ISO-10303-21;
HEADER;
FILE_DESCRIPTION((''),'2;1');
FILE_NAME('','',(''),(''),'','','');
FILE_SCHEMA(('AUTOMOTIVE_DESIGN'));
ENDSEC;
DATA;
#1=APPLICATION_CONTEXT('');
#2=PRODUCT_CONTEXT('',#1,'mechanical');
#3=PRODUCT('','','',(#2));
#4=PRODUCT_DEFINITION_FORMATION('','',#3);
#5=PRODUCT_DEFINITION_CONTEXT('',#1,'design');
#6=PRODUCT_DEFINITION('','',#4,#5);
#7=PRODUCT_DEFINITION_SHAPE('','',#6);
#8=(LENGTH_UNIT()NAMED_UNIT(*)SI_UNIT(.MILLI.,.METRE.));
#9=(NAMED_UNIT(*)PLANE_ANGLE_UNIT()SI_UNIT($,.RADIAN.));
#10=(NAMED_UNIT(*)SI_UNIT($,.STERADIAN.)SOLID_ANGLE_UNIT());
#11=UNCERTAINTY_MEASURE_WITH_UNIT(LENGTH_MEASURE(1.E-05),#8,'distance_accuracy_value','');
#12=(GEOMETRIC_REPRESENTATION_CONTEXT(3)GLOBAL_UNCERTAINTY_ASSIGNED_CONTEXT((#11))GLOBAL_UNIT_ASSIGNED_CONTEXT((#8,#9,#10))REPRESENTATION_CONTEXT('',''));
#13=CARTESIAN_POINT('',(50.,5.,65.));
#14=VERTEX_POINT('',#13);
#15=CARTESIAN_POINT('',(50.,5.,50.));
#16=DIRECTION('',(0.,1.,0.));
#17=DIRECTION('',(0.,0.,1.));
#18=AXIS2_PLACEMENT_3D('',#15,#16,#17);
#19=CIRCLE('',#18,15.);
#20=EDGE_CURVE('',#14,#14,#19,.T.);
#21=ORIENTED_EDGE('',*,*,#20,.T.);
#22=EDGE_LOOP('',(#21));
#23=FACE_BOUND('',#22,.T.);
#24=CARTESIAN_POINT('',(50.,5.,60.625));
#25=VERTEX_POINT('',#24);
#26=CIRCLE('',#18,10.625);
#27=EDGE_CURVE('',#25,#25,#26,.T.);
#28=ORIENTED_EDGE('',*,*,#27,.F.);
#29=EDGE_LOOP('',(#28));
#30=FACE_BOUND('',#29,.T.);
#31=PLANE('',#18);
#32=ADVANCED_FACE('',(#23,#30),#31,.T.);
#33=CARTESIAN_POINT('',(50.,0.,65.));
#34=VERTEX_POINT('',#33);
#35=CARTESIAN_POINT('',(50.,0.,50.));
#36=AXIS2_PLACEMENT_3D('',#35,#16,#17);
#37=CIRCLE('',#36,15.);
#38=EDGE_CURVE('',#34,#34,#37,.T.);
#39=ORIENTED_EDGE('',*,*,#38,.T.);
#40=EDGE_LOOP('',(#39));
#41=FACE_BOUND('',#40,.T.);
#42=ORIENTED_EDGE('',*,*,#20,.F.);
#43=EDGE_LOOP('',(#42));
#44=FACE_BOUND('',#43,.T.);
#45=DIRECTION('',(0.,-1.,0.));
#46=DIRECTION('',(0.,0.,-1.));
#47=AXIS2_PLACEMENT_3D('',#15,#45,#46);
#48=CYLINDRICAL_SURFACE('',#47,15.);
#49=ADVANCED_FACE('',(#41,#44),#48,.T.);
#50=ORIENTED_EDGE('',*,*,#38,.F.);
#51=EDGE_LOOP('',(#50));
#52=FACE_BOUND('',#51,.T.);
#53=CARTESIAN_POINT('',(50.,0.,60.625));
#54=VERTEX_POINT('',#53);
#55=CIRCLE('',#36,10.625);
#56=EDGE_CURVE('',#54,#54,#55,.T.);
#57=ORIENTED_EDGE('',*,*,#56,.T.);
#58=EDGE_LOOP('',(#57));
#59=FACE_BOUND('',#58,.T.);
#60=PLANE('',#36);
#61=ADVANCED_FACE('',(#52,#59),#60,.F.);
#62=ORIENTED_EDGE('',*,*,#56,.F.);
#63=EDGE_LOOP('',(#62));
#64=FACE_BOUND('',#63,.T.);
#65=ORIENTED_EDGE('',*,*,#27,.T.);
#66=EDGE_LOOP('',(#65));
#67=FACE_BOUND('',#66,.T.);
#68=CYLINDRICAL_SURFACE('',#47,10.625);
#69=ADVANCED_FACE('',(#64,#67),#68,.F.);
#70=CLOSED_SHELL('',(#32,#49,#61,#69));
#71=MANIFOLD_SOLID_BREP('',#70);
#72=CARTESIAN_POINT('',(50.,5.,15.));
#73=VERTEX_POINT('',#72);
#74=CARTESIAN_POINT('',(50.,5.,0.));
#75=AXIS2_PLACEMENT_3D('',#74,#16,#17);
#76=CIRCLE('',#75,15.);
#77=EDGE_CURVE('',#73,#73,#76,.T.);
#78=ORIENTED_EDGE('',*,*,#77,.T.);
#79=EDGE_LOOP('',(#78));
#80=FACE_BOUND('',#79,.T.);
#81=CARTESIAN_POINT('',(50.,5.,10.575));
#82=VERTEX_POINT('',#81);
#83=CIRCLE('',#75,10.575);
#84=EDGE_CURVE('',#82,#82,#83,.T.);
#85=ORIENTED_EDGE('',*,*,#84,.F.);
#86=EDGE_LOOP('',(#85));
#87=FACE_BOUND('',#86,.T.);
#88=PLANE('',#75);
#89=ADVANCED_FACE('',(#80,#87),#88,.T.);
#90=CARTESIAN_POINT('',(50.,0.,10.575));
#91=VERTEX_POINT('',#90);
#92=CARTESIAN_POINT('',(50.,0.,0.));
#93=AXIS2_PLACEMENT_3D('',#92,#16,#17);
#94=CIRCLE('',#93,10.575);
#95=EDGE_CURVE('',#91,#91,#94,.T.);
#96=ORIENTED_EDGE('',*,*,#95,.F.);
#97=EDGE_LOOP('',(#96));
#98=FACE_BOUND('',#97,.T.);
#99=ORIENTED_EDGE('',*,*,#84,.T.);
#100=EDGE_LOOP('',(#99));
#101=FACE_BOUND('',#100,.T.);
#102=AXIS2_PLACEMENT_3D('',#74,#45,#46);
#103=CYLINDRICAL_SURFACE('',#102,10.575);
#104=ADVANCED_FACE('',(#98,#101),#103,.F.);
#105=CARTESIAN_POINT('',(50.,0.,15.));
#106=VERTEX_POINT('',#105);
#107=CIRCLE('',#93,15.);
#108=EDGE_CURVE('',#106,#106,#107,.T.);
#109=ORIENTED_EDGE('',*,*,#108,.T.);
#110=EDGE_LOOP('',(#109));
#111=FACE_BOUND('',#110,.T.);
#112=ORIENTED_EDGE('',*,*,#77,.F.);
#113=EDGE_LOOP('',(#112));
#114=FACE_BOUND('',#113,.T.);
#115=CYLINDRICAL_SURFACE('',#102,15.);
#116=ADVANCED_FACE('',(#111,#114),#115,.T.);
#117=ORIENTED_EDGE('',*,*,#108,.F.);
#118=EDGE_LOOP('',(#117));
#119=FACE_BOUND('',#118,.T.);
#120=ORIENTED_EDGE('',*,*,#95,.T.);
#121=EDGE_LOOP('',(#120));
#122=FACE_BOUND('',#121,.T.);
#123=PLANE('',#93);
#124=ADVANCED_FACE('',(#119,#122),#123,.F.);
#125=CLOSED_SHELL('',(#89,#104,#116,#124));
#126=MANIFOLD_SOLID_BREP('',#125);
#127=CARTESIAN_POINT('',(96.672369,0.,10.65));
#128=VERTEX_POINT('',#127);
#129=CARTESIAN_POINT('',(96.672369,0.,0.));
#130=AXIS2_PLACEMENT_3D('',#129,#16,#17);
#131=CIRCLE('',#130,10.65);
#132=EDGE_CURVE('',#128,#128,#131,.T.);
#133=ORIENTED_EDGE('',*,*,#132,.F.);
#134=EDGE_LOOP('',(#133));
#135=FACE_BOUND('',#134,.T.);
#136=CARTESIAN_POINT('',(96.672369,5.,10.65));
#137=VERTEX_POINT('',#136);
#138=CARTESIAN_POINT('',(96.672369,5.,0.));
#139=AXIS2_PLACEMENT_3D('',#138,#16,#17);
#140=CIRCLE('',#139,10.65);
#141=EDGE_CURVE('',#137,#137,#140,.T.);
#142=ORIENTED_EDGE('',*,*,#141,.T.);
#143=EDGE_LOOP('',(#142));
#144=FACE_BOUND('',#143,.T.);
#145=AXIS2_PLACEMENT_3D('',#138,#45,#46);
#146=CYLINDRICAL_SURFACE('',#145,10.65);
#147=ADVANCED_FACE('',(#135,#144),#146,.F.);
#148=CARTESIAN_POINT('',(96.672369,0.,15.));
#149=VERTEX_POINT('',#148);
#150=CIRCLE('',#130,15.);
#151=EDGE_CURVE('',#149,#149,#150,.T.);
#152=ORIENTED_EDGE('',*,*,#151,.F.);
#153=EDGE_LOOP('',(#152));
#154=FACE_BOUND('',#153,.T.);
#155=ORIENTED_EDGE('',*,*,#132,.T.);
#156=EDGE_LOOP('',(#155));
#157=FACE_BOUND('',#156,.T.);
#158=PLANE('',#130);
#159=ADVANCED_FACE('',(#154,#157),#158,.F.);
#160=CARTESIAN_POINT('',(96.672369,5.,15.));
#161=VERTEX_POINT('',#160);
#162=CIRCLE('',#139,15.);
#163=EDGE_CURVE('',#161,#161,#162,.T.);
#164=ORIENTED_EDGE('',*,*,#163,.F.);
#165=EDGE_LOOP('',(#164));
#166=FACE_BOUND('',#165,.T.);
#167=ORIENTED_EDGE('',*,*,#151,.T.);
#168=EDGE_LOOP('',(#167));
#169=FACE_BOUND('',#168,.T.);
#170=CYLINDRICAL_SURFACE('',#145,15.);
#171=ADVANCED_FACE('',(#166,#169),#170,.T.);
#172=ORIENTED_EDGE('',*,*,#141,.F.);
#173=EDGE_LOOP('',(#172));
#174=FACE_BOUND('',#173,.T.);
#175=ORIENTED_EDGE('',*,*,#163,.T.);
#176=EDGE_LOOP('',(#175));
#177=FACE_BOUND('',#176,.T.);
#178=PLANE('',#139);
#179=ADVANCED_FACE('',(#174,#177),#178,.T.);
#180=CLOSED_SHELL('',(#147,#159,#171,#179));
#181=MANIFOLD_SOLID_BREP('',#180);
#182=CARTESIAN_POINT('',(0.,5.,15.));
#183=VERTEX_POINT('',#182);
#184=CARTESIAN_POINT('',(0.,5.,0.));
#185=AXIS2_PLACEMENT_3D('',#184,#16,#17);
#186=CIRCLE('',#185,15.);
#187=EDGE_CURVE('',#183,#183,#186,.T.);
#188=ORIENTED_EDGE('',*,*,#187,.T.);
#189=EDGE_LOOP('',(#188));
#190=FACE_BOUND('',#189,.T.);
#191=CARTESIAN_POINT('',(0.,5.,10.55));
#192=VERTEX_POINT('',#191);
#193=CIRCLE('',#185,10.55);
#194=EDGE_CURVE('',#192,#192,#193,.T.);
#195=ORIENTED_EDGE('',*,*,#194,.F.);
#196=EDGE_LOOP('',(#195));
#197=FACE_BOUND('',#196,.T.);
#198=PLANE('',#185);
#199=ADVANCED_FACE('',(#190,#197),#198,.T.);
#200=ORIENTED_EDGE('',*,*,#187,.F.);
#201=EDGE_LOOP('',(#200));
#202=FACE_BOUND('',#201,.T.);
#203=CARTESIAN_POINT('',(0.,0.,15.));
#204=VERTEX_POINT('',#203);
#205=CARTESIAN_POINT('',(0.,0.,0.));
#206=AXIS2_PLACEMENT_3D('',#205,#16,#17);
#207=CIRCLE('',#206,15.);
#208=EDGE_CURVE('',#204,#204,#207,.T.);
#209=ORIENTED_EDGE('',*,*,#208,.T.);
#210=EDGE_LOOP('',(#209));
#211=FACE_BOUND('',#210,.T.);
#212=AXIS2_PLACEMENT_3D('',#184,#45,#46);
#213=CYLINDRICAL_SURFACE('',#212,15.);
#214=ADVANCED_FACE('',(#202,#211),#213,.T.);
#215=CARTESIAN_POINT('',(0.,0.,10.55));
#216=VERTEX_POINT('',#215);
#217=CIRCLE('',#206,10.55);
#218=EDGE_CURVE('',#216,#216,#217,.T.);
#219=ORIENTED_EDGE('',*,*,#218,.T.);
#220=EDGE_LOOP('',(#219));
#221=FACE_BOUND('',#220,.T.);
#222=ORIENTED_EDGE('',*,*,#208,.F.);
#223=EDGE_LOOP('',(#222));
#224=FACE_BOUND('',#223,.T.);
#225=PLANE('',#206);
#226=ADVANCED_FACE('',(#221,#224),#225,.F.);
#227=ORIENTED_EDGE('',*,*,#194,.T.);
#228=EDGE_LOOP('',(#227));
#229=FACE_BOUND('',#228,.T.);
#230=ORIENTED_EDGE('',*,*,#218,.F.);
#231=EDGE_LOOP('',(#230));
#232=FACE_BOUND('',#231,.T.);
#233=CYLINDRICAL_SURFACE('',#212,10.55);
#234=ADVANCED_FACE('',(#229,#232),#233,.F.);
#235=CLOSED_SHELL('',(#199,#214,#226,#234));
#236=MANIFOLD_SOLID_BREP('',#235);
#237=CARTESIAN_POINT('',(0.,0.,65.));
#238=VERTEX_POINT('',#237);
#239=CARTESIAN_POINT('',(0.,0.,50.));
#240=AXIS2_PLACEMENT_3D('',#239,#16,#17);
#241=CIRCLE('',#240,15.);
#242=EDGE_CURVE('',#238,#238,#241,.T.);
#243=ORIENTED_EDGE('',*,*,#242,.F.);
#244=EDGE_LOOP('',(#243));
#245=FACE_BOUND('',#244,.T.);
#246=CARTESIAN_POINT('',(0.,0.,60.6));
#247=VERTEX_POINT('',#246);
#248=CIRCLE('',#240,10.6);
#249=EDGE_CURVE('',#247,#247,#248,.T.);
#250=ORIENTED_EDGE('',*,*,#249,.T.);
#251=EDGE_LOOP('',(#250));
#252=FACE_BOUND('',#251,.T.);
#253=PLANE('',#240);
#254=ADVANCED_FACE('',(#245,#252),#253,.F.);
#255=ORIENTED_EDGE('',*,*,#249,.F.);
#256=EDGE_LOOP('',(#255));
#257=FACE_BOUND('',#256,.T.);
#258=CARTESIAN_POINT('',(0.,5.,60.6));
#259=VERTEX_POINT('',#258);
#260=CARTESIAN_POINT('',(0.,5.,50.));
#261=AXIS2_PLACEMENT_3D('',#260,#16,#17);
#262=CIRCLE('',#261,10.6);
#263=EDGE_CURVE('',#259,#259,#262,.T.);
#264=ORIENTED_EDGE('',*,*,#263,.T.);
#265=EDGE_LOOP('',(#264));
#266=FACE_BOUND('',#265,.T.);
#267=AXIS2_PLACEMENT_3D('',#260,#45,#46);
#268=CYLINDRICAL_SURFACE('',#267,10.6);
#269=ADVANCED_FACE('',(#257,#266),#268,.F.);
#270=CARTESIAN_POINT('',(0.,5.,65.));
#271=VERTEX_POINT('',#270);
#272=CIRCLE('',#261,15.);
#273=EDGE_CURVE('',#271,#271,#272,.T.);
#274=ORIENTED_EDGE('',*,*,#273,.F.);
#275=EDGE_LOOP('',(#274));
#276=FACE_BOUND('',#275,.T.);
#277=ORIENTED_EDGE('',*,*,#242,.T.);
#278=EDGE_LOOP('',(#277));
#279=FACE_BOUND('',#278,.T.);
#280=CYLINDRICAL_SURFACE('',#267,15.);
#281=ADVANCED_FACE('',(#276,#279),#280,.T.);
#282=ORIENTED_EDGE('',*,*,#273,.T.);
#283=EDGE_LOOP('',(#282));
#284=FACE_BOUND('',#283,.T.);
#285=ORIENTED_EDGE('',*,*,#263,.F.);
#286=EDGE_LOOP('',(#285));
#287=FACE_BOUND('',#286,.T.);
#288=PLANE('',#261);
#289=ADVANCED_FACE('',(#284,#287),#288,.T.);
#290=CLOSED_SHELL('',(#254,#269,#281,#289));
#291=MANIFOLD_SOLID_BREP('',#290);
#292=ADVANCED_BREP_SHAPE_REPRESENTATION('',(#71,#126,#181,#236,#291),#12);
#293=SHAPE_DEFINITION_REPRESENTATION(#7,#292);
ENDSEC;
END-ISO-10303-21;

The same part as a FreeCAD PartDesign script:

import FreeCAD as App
import Part
import Sketcher

doc = App.newDocument("Part")
params = doc.addObject("Spreadsheet::Sheet", "Params")
for row, (alias, value) in enumerate([
    ("sketch1_diameter", "30 mm"),
    ("sketch1_diameter2", "21.1 mm"),
    ("pad1_length", "5 mm"),
    ("sketch2_diameter", "30 mm"),
    ("sketch2_diameter2", "21.15 mm"),
    ("pad2_length", "5 mm"),
    ("sketch3_diameter", "30 mm"),
    ("sketch3_diameter2", "21.2 mm"),
    ("pad3_length", "5 mm"),
    ("sketch4_diameter", "30 mm"),
    ("sketch4_diameter2", "21.25 mm"),
    ("pad4_length", "5 mm"),
    ("sketch5_diameter", "30 mm"),
    ("sketch5_diameter2", "21.3 mm"),
    ("pad5_length", "5 mm"),
], start=1):
    params.set(f"A{row}", alias)
    params.set(f"B{row}", "=" + value)
    params.setAlias(f"B{row}", alias)

body = doc.addObject("PartDesign::Body", "Body")

# Sketch on XZ plane
sketch1 = doc.addObject("Sketcher::SketchObject", "Sketch")
body.addObject(sketch1)
sketch1.AttachmentSupport = (doc.XZ_Plane, [""])
sketch1.MapMode = "FlatFace"
sketch1.addGeometry([
    Part.Circle(App.Vector(0, 0, 0), App.Vector(0, 0, 1), 15),
    Part.Circle(App.Vector(0, 0, 0), App.Vector(0, 0, 1), 10.55),
], False)
sketch1.addConstraint([
    Sketcher.Constraint("Coincident", 0, 3, -1, 1),
    Sketcher.Constraint("Coincident", 1, 3, -1, 1),
    Sketcher.Constraint("Diameter", 0, 30.0),
    Sketcher.Constraint("Diameter", 1, 21.1),
])
sketch1.setExpression("Constraints[2]", "Params.sketch1_diameter")
sketch1.setExpression("Constraints[3]", "Params.sketch1_diameter2")
pad1 = doc.addObject("PartDesign::Pad", "Pad")
body.addObject(pad1)
pad1.Profile = sketch1
pad1.setExpression("Length", "Params.pad1_length")
pad1.Reversed = True
body2 = doc.addObject("PartDesign::Body", "Body001")

# Sketch on XZ plane
sketch2 = doc.addObject("Sketcher::SketchObject", "Sketch001")
body2.addObject(sketch2)
sketch2.AttachmentSupport = (doc.getObject("XZ_Plane001"), [""])
sketch2.MapMode = "FlatFace"
sketch2.addGeometry([
    Part.Circle(App.Vector(50, 0, 0), App.Vector(0, 0, 1), 15),
    Part.Circle(App.Vector(50, 0, 0), App.Vector(0, 0, 1), 10.575),
], False)
sketch2.addConstraint([
    Sketcher.Constraint("Coincident", 1, 3, 0, 3),
    Sketcher.Constraint("PointOnObject", 0, 3, -1),
    Sketcher.Constraint("Diameter", 0, 30.0),
    Sketcher.Constraint("Diameter", 1, 21.15),
    Sketcher.Constraint("DistanceX", -1, 1, 0, 3, 50.0),
])
sketch2.setExpression("Constraints[2]", "Params.sketch2_diameter")
sketch2.setExpression("Constraints[3]", "Params.sketch2_diameter2")
pad2 = doc.addObject("PartDesign::Pad", "Pad001")
body2.addObject(pad2)
pad2.Profile = sketch2
pad2.setExpression("Length", "Params.pad2_length")
pad2.Reversed = True
body3 = doc.addObject("PartDesign::Body", "Body002")

# Sketch on XZ plane
sketch3 = doc.addObject("Sketcher::SketchObject", "Sketch002")
body3.addObject(sketch3)
sketch3.AttachmentSupport = (doc.getObject("XZ_Plane002"), [""])
sketch3.MapMode = "FlatFace"
sketch3.addGeometry([
    Part.Circle(App.Vector(0, 50, 0), App.Vector(0, 0, 1), 15),
    Part.Circle(App.Vector(0, 50, 0), App.Vector(0, 0, 1), 10.6),
], False)
sketch3.addConstraint([
    Sketcher.Constraint("Coincident", 1, 3, 0, 3),
    Sketcher.Constraint("PointOnObject", 0, 3, -2),
    Sketcher.Constraint("Diameter", 0, 30.0),
    Sketcher.Constraint("Diameter", 1, 21.2),
    Sketcher.Constraint("DistanceY", -1, 1, 0, 3, 50.0),
])
sketch3.setExpression("Constraints[2]", "Params.sketch3_diameter")
sketch3.setExpression("Constraints[3]", "Params.sketch3_diameter2")
pad3 = doc.addObject("PartDesign::Pad", "Pad002")
body3.addObject(pad3)
pad3.Profile = sketch3
pad3.setExpression("Length", "Params.pad3_length")
pad3.Reversed = True
body4 = doc.addObject("PartDesign::Body", "Body003")

# Sketch on XZ plane
sketch4 = doc.addObject("Sketcher::SketchObject", "Sketch003")
body4.addObject(sketch4)
sketch4.AttachmentSupport = (doc.getObject("XZ_Plane003"), [""])
sketch4.MapMode = "FlatFace"
sketch4.addGeometry([
    Part.Circle(App.Vector(50, 50, 0), App.Vector(0, 0, 1), 15),
    Part.Circle(App.Vector(50, 50, 0), App.Vector(0, 0, 1), 10.625),
], False)
sketch4.addConstraint([
    Sketcher.Constraint("Coincident", 1, 3, 0, 3),
    Sketcher.Constraint("Diameter", 0, 30.0),
    Sketcher.Constraint("Diameter", 1, 21.25),
    Sketcher.Constraint("DistanceX", -1, 1, 0, 3, 50.0),
    Sketcher.Constraint("DistanceY", -1, 1, 0, 3, 50.0),
])
sketch4.setExpression("Constraints[1]", "Params.sketch4_diameter")
sketch4.setExpression("Constraints[2]", "Params.sketch4_diameter2")
pad4 = doc.addObject("PartDesign::Pad", "Pad003")
body4.addObject(pad4)
pad4.Profile = sketch4
pad4.setExpression("Length", "Params.pad4_length")
pad4.Reversed = True
body5 = doc.addObject("PartDesign::Body", "Body004")

# Sketch on XZ plane
sketch5 = doc.addObject("Sketcher::SketchObject", "Sketch004")
body5.addObject(sketch5)
sketch5.AttachmentSupport = (doc.getObject("XZ_Plane004"), [""])
sketch5.MapMode = "FlatFace"
sketch5.addGeometry([
    Part.Circle(App.Vector(96.672369, 0, 0), App.Vector(0, 0, 1), 15),
    Part.Circle(App.Vector(96.672369, 0, 0), App.Vector(0, 0, 1), 10.65),
], False)
sketch5.addConstraint([
    Sketcher.Constraint("Coincident", 1, 3, 0, 3),
    Sketcher.Constraint("PointOnObject", 0, 3, -1),
    Sketcher.Constraint("Diameter", 0, 30.0),
    Sketcher.Constraint("Diameter", 1, 21.3),
    Sketcher.Constraint("DistanceX", -1, 1, 0, 3, 96.672369),
])
sketch5.setExpression("Constraints[2]", "Params.sketch5_diameter")
sketch5.setExpression("Constraints[3]", "Params.sketch5_diameter2")
pad5 = doc.addObject("PartDesign::Pad", "Pad004")
body5.addObject(pad5)
pad5.Profile = sketch5
pad5.setExpression("Length", "Params.pad5_length")
pad5.Reversed = True

doc.recompute()
